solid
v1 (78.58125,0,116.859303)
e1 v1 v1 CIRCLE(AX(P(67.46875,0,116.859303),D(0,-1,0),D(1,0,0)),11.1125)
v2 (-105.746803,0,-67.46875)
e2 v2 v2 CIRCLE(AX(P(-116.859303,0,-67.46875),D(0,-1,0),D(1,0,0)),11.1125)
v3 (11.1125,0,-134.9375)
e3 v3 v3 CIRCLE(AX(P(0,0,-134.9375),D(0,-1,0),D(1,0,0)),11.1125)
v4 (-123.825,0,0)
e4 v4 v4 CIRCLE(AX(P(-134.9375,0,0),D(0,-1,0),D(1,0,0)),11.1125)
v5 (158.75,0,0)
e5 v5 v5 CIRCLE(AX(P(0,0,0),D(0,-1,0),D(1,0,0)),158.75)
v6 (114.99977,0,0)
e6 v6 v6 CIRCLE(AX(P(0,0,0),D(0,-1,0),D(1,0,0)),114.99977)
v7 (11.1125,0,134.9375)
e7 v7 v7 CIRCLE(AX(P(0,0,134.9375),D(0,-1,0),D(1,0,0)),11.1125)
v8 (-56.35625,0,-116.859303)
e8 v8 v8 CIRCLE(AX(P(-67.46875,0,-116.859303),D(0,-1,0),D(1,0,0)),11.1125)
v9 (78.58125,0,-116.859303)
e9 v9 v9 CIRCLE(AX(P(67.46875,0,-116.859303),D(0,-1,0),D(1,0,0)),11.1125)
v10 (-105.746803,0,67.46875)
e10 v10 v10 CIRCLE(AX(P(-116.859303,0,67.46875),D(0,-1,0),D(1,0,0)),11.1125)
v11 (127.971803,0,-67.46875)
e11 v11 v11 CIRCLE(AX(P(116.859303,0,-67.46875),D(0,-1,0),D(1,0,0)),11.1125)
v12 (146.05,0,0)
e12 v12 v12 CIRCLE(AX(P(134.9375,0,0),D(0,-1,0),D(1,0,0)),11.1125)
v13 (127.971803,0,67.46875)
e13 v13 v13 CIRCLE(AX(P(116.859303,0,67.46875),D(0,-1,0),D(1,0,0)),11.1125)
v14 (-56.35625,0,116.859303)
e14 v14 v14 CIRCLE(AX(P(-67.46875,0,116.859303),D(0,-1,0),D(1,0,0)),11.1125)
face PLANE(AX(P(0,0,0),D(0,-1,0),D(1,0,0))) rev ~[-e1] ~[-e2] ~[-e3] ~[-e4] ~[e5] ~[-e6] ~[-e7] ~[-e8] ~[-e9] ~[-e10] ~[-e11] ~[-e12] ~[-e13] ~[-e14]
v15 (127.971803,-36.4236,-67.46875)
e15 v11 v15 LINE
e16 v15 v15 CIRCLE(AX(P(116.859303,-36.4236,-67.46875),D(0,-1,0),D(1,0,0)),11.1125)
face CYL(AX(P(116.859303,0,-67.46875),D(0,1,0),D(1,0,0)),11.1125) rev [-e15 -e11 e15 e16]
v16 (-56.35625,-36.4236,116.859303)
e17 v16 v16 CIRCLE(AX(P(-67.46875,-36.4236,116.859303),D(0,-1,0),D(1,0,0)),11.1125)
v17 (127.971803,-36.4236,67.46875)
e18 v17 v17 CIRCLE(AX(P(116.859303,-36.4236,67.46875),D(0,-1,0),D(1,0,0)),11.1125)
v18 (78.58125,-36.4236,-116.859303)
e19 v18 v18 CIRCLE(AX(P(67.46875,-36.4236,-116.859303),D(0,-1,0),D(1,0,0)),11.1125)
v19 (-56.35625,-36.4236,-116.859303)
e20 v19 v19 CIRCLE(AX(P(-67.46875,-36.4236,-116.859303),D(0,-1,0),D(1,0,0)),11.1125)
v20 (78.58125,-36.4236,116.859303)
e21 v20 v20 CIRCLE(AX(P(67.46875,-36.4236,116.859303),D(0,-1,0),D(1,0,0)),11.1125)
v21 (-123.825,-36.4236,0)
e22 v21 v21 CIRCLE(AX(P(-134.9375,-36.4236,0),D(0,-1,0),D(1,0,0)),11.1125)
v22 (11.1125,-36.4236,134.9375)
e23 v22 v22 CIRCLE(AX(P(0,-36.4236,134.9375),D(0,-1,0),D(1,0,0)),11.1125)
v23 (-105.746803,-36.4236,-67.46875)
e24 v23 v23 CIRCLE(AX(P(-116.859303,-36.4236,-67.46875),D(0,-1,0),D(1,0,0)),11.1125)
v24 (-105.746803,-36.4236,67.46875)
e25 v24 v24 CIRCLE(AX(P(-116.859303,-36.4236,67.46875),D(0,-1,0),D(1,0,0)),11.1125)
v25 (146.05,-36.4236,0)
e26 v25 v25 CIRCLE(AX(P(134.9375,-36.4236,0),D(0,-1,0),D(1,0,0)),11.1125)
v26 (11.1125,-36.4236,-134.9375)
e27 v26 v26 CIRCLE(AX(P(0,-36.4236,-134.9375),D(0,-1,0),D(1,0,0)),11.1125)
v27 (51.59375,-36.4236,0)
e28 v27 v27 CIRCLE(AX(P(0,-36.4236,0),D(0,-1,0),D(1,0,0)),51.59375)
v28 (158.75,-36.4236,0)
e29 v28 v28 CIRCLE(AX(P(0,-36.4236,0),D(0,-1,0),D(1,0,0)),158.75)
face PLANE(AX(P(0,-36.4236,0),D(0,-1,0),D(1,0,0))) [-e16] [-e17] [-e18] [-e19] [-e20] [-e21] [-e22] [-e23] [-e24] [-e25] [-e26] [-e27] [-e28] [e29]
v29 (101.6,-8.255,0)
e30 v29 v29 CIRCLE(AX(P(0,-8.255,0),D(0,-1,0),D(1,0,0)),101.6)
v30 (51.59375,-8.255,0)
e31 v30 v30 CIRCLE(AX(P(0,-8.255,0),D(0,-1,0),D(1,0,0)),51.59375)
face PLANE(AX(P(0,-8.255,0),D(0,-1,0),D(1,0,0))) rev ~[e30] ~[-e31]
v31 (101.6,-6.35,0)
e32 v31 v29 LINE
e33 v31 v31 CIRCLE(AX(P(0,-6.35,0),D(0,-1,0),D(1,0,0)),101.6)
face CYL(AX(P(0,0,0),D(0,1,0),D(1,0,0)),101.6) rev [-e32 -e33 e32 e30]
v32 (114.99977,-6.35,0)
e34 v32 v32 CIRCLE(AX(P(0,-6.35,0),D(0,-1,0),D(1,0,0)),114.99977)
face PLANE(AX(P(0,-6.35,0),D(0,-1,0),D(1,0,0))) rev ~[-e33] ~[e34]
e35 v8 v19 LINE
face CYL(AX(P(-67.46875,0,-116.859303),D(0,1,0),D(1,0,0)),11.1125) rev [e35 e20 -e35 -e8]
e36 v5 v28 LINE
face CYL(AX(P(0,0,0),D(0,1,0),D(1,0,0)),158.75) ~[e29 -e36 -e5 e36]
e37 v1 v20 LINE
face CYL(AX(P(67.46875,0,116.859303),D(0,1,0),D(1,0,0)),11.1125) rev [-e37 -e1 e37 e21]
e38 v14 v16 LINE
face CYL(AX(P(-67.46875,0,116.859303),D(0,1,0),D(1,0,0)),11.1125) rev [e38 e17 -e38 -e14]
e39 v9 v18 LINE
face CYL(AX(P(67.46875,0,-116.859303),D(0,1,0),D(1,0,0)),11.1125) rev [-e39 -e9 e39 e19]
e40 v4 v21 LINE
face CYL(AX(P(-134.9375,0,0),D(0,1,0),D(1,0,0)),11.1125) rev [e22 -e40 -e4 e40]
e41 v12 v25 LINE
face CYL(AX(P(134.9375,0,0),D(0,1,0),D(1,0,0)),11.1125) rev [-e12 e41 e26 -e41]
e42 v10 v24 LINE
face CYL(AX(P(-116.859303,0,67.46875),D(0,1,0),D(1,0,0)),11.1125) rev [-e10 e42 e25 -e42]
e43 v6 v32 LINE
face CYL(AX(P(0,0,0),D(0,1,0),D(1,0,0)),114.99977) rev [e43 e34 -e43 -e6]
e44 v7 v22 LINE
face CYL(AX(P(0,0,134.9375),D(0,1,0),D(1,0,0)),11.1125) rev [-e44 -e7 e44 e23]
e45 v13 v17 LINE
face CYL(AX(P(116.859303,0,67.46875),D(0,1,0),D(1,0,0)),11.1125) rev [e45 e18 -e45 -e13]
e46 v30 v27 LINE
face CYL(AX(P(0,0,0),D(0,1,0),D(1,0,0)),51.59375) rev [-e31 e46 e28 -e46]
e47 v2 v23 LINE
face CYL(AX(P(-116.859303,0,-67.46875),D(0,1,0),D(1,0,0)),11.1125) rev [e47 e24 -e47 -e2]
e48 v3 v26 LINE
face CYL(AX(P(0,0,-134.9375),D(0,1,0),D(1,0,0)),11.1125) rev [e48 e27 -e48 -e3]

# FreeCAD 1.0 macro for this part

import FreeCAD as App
import Part
import Sketcher
Q = App.Units.Quantity

doc = App.newDocument("Part")
body = doc.addObject("PartDesign::Body", "Body")

# Sketch on XZ plane
sketch1 = body.newObject("Sketcher::SketchObject", "Sketch")
sketch1.AttachmentSupport = (doc.getObject("XZ_Plane"), [""])
sketch1.MapMode = "FlatFace"
sketch1.addGeometry([
    Part.Circle(App.Vector(0, 0, 0), App.Vector(0, 0, 1), 159),  # 0
    Part.Circle(App.Vector(-67, -117, 0), App.Vector(0, 0, 1), 11),  # 1
    Part.Circle(App.Vector(-117, -67, 0), App.Vector(0, 0, 1), 11),  # 2
    Part.Circle(App.Vector(0, -135, 0), App.Vector(0, 0, 1), 11),  # 3
    Part.Circle(App.Vector(67, -117, 0), App.Vector(0, 0, 1), 11),  # 4
    Part.Circle(App.Vector(117, -67, 0), App.Vector(0, 0, 1), 11),  # 5
    Part.Circle(App.Vector(-135, 0, 0), App.Vector(0, 0, 1), 11),  # 6
    Part.Circle(App.Vector(-117, 67, 0), App.Vector(0, 0, 1), 11),  # 7
    Part.Circle(App.Vector(-67, 117, 0), App.Vector(0, 0, 1), 11),  # 8
    Part.Circle(App.Vector(135, 0, 0), App.Vector(0, 0, 1), 11),  # 9
    Part.Circle(App.Vector(117, 67, 0), App.Vector(0, 0, 1), 11),  # 10
    Part.Circle(App.Vector(0, 135, 0), App.Vector(0, 0, 1), 11),  # 11
    Part.Circle(App.Vector(67, 117, 0), App.Vector(0, 0, 1), 11),  # 12
], False)
sketch1.addConstraint([
    Sketcher.Constraint("Coincident", 0, 3, -1, 1),
    Sketcher.Constraint("Equal", 1, 2),
    Sketcher.Constraint("Equal", 2, 3),
    Sketcher.Constraint("Equal", 3, 4),
    Sketcher.Constraint("Equal", 4, 5),
    Sketcher.Constraint("Equal", 5, 6),
    Sketcher.Constraint("Equal", 6, 7),
    Sketcher.Constraint("Equal", 7, 8),
    Sketcher.Constraint("Equal", 8, 9),
    Sketcher.Constraint("Equal", 9, 10),
    Sketcher.Constraint("Equal", 10, 11),
    Sketcher.Constraint("Equal", 11, 12),
    Sketcher.Constraint("Symmetric", 5, 3, 7, 3, -1, 1),
    Sketcher.Constraint("Symmetric", 4, 3, 8, 3, -1, 1),
    Sketcher.Constraint("Symmetric", 6, 3, 9, 3, -1, 1),
    Sketcher.Constraint("Symmetric", 2, 3, 10, 3, -1, 1),
    Sketcher.Constraint("Symmetric", 3, 3, 11, 3, -1, 1),
    Sketcher.Constraint("Symmetric", 1, 3, 12, 3, -1, 1),
    Sketcher.Constraint("Symmetric", 1, 3, 4, 3, -2),
    Sketcher.Constraint("Symmetric", 2, 3, 5, 3, -2),
    Sketcher.Constraint("PointOnObject", 3, 3, -2),
    Sketcher.Constraint("PointOnObject", 6, 3, -1),
    Sketcher.Constraint("Diameter", 0, Q("12.5 in")),
    Sketcher.Constraint("Diameter", 1, Q("0.875 in")),
    Sketcher.Constraint("DistanceX", 1, 3, -1, 1, Q("2.65625 in")),
    Sketcher.Constraint("DistanceY", 2, 3, -1, 1, Q("2.65625 in")),
    Sketcher.Constraint("DistanceY", 3, 3, -1, 1, Q("5.3125 in")),
    Sketcher.Constraint("DistanceX", 6, 3, -1, 1, Q("5.3125 in")),
    Sketcher.Constraint("DistanceY", 1, 3, -1, 1, Q("116.859303 mm")),
    Sketcher.Constraint("DistanceX", 2, 3, -1, 1, Q("116.859303 mm")),
])
pad1 = body.newObject("PartDesign::Pad", "Pad")
pad1.Profile = sketch1
pad1.Length = Q("1.434 in")

# Sketch on XZ plane
sketch2 = body.newObject("Sketcher::SketchObject", "Sketch001")
sketch2.AttachmentSupport = (doc.getObject("XZ_Plane"), [""])
sketch2.MapMode = "FlatFace"
sketch2.addGeometry([
    Part.Circle(App.Vector(0, 0, 0), App.Vector(0, 0, 1), 115),
    Part.Circle(App.Vector(0, 0, 0), App.Vector(0, 0, 1), 102),
], False)
sketch2.addConstraint([
    Sketcher.Constraint("Coincident", 0, 3, -1, 1),
    Sketcher.Constraint("Coincident", 1, 3, -1, 1),
    Sketcher.Constraint("Diameter", 1, Q("8 in")),
    Sketcher.Constraint("Diameter", 0, Q("9.0551 in")),
])
pocket1 = body.newObject("PartDesign::Pocket", "Pocket")
pocket1.Profile = sketch2
pocket1.Length = Q("0.25 in")
pocket1.Reversed = True

# Sketch on XZ plane
sketch3 = body.newObject("Sketcher::SketchObject", "Sketch002")
sketch3.AttachmentSupport = (doc.getObject("XZ_Plane"), [""])
sketch3.MapMode = "FlatFace"
sketch3.addGeometry([
    Part.Circle(App.Vector(0, 0, 0), App.Vector(0, 0, 1), 102),
    Part.Circle(App.Vector(0, 0, 0), App.Vector(0, 0, 1), 52),
], False)
sketch3.addConstraint([
    Sketcher.Constraint("Coincident", 0, 3, -1, 1),
    Sketcher.Constraint("Coincident", 1, 3, -1, 1),
    Sketcher.Constraint("Diameter", 0, Q("8 in")),
    Sketcher.Constraint("Diameter", 1, Q("4.0625 in")),
])
pocket2 = body.newObject("PartDesign::Pocket", "Pocket001")
pocket2.Profile = sketch3
pocket2.Length = Q("0.325 in")
pocket2.Reversed = True

# Sketch on XZ plane
sketch4 = body.newObject("Sketcher::SketchObject", "Sketch003")
sketch4.AttachmentSupport = (doc.getObject("XZ_Plane"), [""])
sketch4.MapMode = "FlatFace"
sketch4.addGeometry(Part.Circle(App.Vector(0, 0, 0), App.Vector(0, 0, 1), 52), False)
sketch4.addConstraint([
    Sketcher.Constraint("Coincident", 0, 3, -1, 1),
    Sketcher.Constraint("Diameter", 0, Q("4.0625 in")),
])
pocket3 = body.newObject("PartDesign::Pocket", "Pocket002")
pocket3.Profile = sketch4
pocket3.Length = Q("1.434 in")
pocket3.Reversed = True

doc.recompute()
